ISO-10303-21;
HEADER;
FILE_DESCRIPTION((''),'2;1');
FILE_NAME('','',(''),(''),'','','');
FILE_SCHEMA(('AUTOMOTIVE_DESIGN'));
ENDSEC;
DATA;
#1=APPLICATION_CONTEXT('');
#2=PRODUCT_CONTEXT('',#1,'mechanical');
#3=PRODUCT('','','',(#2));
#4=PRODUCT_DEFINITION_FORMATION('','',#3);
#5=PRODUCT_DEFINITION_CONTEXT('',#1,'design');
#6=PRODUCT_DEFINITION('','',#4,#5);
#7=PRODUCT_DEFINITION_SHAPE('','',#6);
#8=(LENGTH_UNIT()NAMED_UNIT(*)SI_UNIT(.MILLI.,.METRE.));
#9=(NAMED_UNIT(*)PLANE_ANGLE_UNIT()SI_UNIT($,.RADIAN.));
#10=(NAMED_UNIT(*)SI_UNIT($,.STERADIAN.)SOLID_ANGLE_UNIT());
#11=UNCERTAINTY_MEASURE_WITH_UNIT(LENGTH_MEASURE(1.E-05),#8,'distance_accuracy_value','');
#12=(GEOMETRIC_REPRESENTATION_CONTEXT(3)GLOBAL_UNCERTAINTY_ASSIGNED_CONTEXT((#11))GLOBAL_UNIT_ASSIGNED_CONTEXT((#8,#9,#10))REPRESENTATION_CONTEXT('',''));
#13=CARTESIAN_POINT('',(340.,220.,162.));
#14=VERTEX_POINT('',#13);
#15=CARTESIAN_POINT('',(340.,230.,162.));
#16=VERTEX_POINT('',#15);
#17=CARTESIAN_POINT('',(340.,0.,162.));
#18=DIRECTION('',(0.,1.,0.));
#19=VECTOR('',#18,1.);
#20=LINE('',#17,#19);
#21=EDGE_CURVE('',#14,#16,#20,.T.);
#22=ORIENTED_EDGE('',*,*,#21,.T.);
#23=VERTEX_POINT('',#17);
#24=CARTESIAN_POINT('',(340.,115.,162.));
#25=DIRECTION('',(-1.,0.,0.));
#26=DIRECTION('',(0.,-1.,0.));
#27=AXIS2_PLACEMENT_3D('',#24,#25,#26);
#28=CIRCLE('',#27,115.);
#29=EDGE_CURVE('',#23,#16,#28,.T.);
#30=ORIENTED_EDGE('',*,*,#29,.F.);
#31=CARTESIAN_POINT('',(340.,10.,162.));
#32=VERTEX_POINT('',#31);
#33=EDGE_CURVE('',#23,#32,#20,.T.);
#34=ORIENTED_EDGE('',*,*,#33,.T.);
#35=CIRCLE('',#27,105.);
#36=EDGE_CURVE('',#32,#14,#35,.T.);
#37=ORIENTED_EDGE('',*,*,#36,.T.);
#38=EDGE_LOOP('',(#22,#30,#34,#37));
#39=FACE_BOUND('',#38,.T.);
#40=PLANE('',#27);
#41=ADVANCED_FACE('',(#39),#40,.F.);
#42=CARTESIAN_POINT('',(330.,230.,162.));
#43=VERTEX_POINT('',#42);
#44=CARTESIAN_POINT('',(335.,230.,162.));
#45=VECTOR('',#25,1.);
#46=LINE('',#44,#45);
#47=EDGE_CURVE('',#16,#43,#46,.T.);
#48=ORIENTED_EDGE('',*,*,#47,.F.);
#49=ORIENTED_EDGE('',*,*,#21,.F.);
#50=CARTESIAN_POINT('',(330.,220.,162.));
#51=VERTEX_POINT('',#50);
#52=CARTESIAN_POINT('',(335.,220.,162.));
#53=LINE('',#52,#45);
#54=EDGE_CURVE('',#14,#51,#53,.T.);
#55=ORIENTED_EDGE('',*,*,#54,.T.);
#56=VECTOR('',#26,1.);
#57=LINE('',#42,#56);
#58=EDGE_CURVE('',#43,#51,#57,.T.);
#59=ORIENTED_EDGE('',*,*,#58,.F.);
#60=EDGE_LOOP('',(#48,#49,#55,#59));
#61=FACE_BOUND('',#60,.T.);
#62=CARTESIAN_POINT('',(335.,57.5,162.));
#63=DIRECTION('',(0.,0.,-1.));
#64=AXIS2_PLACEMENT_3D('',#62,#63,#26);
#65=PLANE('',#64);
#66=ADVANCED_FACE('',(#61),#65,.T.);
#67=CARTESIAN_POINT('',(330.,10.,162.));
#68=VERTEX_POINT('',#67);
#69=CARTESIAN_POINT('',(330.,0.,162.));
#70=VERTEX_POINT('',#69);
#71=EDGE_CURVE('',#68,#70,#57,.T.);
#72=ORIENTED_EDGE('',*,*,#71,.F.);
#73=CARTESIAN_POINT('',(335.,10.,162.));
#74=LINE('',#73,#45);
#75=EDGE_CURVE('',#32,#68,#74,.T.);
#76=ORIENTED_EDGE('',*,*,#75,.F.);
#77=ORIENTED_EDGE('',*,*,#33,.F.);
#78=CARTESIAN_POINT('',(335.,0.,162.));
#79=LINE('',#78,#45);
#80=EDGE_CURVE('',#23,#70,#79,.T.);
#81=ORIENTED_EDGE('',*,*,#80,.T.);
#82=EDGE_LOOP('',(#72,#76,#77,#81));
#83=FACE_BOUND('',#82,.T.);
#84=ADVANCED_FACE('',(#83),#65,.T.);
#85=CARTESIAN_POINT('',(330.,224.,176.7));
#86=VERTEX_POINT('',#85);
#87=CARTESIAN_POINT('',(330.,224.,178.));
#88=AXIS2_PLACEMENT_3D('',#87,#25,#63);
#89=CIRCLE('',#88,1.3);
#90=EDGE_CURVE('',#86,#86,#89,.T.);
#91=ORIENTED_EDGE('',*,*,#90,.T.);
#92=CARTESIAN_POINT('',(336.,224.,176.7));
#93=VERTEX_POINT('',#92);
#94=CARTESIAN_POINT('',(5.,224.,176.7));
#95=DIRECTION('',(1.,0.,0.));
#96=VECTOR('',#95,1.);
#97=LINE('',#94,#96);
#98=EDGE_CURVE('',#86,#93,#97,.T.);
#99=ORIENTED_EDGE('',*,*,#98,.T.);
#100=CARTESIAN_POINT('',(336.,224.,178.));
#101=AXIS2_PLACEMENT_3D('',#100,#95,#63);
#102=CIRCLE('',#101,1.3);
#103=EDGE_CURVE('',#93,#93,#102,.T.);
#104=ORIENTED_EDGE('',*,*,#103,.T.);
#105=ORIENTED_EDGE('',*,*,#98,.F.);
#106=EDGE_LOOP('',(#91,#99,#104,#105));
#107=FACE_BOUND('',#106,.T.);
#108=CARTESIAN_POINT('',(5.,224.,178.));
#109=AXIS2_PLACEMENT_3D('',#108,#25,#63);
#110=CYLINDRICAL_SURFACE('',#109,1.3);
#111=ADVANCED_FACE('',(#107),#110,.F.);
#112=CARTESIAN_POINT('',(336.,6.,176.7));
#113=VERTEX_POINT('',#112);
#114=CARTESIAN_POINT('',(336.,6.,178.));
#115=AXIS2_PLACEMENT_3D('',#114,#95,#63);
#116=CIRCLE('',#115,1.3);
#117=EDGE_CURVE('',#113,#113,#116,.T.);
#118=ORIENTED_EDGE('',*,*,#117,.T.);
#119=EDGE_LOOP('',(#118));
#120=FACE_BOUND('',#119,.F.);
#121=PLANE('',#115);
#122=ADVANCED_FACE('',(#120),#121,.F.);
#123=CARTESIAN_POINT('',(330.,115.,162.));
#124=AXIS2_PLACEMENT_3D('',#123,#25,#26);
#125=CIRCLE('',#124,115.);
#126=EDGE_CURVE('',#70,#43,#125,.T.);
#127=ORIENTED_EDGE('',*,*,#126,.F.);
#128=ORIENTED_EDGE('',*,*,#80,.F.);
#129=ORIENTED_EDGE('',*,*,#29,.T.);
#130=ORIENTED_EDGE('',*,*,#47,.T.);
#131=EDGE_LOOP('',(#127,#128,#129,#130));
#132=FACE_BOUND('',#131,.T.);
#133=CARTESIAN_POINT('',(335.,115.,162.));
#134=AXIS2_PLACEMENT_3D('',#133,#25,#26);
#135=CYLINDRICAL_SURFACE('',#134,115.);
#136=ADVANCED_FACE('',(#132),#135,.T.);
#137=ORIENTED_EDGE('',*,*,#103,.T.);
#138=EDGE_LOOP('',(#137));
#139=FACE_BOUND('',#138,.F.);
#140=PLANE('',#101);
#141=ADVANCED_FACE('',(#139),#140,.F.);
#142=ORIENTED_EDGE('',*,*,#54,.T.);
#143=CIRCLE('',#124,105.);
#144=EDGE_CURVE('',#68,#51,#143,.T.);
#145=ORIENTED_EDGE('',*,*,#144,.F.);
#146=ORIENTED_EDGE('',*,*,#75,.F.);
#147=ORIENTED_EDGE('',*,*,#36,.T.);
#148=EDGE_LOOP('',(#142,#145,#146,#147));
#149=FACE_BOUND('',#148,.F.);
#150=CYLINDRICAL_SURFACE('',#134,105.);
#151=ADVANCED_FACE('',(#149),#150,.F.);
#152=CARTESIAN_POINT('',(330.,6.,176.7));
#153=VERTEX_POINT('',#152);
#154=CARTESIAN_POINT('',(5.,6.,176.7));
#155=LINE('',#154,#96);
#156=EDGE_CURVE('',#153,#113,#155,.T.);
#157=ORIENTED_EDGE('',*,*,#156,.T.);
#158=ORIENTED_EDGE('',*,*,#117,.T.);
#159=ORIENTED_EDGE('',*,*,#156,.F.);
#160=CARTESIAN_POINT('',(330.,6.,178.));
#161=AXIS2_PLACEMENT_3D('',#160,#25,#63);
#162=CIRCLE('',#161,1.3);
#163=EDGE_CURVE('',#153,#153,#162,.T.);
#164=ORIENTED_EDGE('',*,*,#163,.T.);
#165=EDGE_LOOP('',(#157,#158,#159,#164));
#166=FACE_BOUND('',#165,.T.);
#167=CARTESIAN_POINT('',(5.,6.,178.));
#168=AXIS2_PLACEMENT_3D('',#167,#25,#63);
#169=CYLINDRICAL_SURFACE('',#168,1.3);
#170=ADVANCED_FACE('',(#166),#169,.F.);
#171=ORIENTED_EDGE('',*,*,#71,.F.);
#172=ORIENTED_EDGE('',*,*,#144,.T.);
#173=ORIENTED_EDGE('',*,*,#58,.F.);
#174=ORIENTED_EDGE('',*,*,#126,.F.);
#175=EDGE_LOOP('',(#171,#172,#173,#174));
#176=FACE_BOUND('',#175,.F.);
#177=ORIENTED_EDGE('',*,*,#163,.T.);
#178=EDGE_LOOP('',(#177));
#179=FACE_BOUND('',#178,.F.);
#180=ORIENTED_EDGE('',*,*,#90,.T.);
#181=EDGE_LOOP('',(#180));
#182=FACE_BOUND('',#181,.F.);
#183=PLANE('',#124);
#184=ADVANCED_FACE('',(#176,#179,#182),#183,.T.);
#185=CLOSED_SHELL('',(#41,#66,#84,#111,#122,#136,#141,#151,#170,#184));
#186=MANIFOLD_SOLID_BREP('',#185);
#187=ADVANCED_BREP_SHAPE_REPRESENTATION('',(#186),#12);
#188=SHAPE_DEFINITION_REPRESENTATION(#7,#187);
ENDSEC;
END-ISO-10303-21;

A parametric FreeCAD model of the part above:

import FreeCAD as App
import Part
import Sketcher
from FreeCAD import Vector


def add_polygon(sketch, points):
    """Adds a closed chain of lines whose ends are joined by coincident constraints."""
    first, n = sketch.GeometryCount, len(points)
    for a, b in zip(points, points[1:] + points[:1]):
        sketch.addGeometry(Part.LineSegment(App.Vector(*a, 0), App.Vector(*b, 0)), False)
    for i in range(n):
        sketch.addConstraint(Sketcher.Constraint("Coincident", first + i, 2, first + (i + 1) % n, 1))

doc = App.newDocument("Part")
body = doc.addObject("PartDesign::Body", "Body")

sketch1 = body.newObject("Sketcher::SketchObject", "Sketch")
sketch1.AttachmentSupport = (doc.getObject("YZ_Plane"), [""])
sketch1.MapMode = "FlatFace"
sketch1.AttachmentOffset = App.Placement(Vector(0, 0, 5), App.Rotation())
sketch1.addGeometry(Part.Circle(Vector(224, 178, 0), Vector(0, 0, 1), 1.3), False)
sketch1.addConstraint([
    Sketcher.Constraint("Diameter", 0, 2.6),
    Sketcher.Constraint("DistanceX", -1, 1, 0, 3, 224.0),
    Sketcher.Constraint("DistanceY", -1, 1, 0, 3, 178.0),
])
pad1 = body.newObject("PartDesign::Pad", "Pad")
pad1.Profile = sketch1
pad1.Length = 331
body2 = doc.addObject("PartDesign::Body", "Body001")

sketch2 = body2.newObject("Sketcher::SketchObject", "Sketch001")
sketch2.AttachmentSupport = (doc.getObject("YZ_Plane001"), [""])
sketch2.MapMode = "FlatFace"
sketch2.AttachmentOffset = App.Placement(Vector(0, 0, 5), App.Rotation())
sketch2.addGeometry(Part.Circle(Vector(6, 178, 0), Vector(0, 0, 1), 1.3), False)
sketch2.addConstraint([
    Sketcher.Constraint("Diameter", 0, 2.6),
    Sketcher.Constraint("DistanceX", -1, 1, 0, 3, 6.0),
    Sketcher.Constraint("DistanceY", -1, 1, 0, 3, 178.0),
])
pad2 = body2.newObject("PartDesign::Pad", "Pad001")
pad2.Profile = sketch2
pad2.Length = 331
body3 = doc.addObject("PartDesign::Body", "Body002")

sketch3 = body3.newObject("Sketcher::SketchObject", "Sketch002")
sketch3.AttachmentSupport = (doc.getObject("XY_Plane002"), [""])
sketch3.MapMode = "FlatFace"
sketch3.AttachmentOffset = App.Placement(Vector(0, 0, 171), App.Rotation())
add_polygon(sketch3, [(-13, 115), (-3, 115), (-3, 10), (-13, 10)])
sketch3.addGeometry(Part.LineSegment(Vector(-3, 115, 0), Vector(-13, 115, 0)), True)
sketch3.addConstraint([
    Sketcher.Constraint("Horizontal", 0),
    Sketcher.Constraint("Vertical", 1),
    Sketcher.Constraint("Horizontal", 2),
    Sketcher.Constraint("Vertical", 3),
    Sketcher.Constraint("Horizontal", 4),
    Sketcher.Constraint("Coincident", 4, 1, 0, 2),
    Sketcher.Constraint("Vertical", 2, 2, 4, 2),
    Sketcher.Constraint("DistanceX", 0, 1, 0, 2, 10.0),
    Sketcher.Constraint("DistanceY", 1, 2, 1, 1, 105.0),
    Sketcher.Constraint("DistanceX", 0, 2, -1, 1, 3.0),
    Sketcher.Constraint("DistanceY", -1, 1, 0, 2, 115.0),
])
revolution = body3.newObject("PartDesign::Revolution", "Revolution")
revolution.Profile = sketch3
revolution.ReferenceAxis = (sketch3, ["Axis0"])
revolution.Angle = 180
body4 = doc.addObject("PartDesign::Body", "Body003")

sketch4 = body4.newObject("Sketcher::SketchObject", "Sketch003")
sketch4.AttachmentSupport = (doc.getObject("XY_Plane003"), [""])
sketch4.MapMode = "FlatFace"
sketch4.AttachmentOffset = App.Placement(Vector(0, 0, 171), App.Rotation())
add_polygon(sketch4, [(-13, 115), (-3, 115), (-3, 0), (-13, 0)])
sketch4.addGeometry(Part.LineSegment(Vector(-3, 115, 0), Vector(-13, 115, 0)), True)
sketch4.addConstraint([
    Sketcher.Constraint("Horizontal", 0),
    Sketcher.Constraint("Vertical", 1),
    Sketcher.Constraint("Horizontal", 2),
    Sketcher.Constraint("Vertical", 3),
    Sketcher.Constraint("Horizontal", 4),
    Sketcher.Constraint("Coincident", 4, 1, 0, 2),
    Sketcher.Constraint("PointOnObject", 1, 2, -1),
    Sketcher.Constraint("Vertical", 2, 2, 4, 2),
    Sketcher.Constraint("DistanceX", 0, 1, 0, 2, 10.0),
    Sketcher.Constraint("DistanceY", 1, 2, 1, 1, 115.0),
    Sketcher.Constraint("DistanceX", 0, 2, -1, 1, 3.0),
])
revolution2 = body4.newObject("PartDesign::Revolution", "Revolution001")
revolution2.Profile = sketch4
revolution2.ReferenceAxis = (sketch4, ["Axis0"])
revolution2.Angle = 180
doc.recompute()

boolean = body4.newObject("PartDesign::Boolean", "Boolean")
boolean.Type = "Cut"
boolean.addObjects([body3])
body5 = doc.addObject("PartDesign::Body", "Body004")
doc.recompute()

body4.Placement = App.Placement(Vector(343, 0, -9), App.Rotation(Vector(0, 0, 1), 0))
boolean2 = body5.newObject("PartDesign::Boolean", "Boolean001")
boolean2.Type = "Fuse"
boolean2.addObjects([body4])
doc.recompute()

boolean3 = body5.newObject("PartDesign::Boolean", "Boolean002")
boolean3.Type = "Cut"
boolean3.addObjects([body2])
doc.recompute()

boolean4 = body5.newObject("PartDesign::Boolean", "Boolean003")
boolean4.Type = "Cut"
boolean4.addObjects([body])

doc.recompute()
